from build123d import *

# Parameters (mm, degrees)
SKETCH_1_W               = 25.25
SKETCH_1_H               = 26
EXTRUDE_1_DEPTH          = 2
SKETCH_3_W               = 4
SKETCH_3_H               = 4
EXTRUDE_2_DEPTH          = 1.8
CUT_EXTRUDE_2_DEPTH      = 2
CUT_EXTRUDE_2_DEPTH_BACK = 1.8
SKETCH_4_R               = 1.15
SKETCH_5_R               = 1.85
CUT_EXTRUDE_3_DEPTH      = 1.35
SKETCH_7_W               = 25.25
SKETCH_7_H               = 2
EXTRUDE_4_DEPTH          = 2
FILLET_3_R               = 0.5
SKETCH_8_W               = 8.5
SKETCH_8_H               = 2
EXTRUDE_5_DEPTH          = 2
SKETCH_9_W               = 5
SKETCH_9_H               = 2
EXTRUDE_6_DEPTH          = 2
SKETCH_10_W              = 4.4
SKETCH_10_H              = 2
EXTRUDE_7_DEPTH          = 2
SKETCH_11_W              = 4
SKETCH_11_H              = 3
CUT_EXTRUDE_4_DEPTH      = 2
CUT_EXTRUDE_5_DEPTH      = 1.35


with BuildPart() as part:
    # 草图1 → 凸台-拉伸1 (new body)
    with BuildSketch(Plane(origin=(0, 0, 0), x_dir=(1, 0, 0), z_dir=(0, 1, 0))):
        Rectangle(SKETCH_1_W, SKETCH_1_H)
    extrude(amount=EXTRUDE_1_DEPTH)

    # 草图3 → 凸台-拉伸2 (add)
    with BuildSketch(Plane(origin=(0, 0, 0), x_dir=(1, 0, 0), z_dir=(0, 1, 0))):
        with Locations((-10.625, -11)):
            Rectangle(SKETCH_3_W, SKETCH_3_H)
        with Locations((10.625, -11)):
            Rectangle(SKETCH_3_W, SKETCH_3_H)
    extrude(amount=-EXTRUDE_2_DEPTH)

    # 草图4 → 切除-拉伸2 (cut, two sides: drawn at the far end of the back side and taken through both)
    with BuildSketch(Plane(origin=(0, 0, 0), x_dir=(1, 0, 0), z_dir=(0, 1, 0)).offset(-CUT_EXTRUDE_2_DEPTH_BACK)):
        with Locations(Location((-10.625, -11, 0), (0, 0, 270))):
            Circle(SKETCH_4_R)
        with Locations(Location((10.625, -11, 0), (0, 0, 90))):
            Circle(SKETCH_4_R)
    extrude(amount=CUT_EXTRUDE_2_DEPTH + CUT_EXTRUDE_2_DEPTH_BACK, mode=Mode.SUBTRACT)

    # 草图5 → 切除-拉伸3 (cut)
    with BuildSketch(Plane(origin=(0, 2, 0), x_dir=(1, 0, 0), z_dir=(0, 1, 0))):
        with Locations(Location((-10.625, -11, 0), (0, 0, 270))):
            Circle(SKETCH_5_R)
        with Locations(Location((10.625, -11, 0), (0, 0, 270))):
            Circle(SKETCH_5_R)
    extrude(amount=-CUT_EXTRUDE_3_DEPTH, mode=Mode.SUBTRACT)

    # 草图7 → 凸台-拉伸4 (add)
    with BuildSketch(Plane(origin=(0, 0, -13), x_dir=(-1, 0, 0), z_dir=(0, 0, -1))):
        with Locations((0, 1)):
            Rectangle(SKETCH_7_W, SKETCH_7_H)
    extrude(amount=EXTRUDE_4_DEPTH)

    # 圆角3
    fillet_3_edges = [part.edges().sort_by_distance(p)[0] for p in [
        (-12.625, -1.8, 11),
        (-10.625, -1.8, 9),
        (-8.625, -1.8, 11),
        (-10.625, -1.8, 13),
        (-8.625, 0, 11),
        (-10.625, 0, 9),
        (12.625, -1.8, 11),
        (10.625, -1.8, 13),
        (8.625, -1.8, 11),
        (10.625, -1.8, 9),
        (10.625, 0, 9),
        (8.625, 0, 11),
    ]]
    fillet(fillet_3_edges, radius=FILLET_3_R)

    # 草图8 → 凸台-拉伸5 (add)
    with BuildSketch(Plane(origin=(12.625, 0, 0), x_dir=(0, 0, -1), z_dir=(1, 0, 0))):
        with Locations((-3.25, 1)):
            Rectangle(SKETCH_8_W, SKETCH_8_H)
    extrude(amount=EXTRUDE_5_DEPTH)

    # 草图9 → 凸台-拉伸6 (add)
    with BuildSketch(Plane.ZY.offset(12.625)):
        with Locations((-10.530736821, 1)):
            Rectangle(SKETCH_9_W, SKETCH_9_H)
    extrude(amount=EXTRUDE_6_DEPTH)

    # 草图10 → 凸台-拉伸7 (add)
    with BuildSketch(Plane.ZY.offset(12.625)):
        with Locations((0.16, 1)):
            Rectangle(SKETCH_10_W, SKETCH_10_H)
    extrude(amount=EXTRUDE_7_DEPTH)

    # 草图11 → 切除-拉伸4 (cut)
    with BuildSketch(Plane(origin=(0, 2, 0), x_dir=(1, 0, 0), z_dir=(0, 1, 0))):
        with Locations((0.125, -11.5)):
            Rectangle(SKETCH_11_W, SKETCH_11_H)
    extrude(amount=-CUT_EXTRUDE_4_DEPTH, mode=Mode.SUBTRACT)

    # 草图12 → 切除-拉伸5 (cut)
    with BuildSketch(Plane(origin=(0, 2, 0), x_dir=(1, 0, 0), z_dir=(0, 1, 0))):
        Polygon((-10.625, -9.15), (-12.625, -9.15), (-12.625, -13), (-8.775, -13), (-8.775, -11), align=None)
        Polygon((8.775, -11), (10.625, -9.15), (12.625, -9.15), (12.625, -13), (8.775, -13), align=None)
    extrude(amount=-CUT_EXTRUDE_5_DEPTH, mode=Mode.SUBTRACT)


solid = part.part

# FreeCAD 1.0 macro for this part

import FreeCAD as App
import Part
import Sketcher
from FreeCAD import Vector


def edges_at(feature, points):
    """Names of the edges that pass closest to the given points."""
    edges = feature.Shape.Edges
    near = lambda p: min(range(len(edges)), key=lambda i: edges[i].distToShape(Part.Vertex(*p))[0])
    return sorted({f"Edge{near(p) + 1}" for p in points})


def add_polygon(sketch, points):
    """Adds a closed chain of lines whose ends are joined by coincident constraints."""
    first, n = sketch.GeometryCount, len(points)
    for a, b in zip(points, points[1:] + points[:1]):
        sketch.addGeometry(Part.LineSegment(App.Vector(*a, 0), App.Vector(*b, 0)), False)
    for i in range(n):
        sketch.addConstraint(Sketcher.Constraint("Coincident", first + i, 2, first + (i + 1) % n, 1))

doc = App.newDocument("Part")
params = doc.addObject("Spreadsheet::Sheet", "Params")
for row, (alias, value) in enumerate([
    ("sketch1_height", "26 mm"),
    ("sketch1_width", "25.25 mm"),
    ("pad1_length", "2 mm"),
    ("sketch2_width", "4 mm"),
    ("pad2_length", "1.8 mm"),
    ("sketch3_diameter", "2.3 mm"),
    ("sketch4_diameter", "3.7 mm"),
    ("pocket2_length", "1.35 mm"),
    ("sketch5_height", "2 mm"),
    ("sketch5_width", "25.25 mm"),
    ("pad3_length", "2 mm"),
    ("fillet_radius", "0.5 mm"),
    ("sketch6_width", "2 mm"),
    ("sketch6_height", "8.5 mm"),
    ("pad4_length", "2 mm"),
    ("sketch7_width", "2 mm"),
    ("sketch7_height", "5 mm"),
    ("pad5_length", "2 mm"),
    ("sketch8_width", "2 mm"),
    ("sketch8_height", "4.4 mm"),
    ("pad6_length", "2 mm"),
    ("sketch9_width", "4 mm"),
    ("sketch9_height", "3 mm"),
    ("pocket3_length", "2 mm"),
    ("sketch10_width", "2 mm"),
    ("sketch10_width2", "3.85 mm"),
    ("pocket4_length", "1.35 mm"),
], start=1):
    params.set(f"A{row}", alias)
    params.set(f"B{row}", "=" + value)
    params.setAlias(f"B{row}", alias)

body = doc.addObject("PartDesign::Body", "Body")

sketch1 = doc.addObject("Sketcher::SketchObject", "Sketch")
body.addObject(sketch1)
sketch1.AttachmentSupport = (doc.XZ_Plane, [""])
sketch1.MapMode = "FlatFace"
add_polygon(sketch1, [(-12.625, -13), (-12.625, 13), (12.625, 13), (12.625, -13)])
sketch1.addConstraint(Sketcher.Constraint("Vertical", 0))
sketch1.addConstraint(Sketcher.Constraint("Horizontal", 1))
sketch1.addConstraint(Sketcher.Constraint("Vertical", 2))
sketch1.addConstraint(Sketcher.Constraint("Horizontal", 3))
sketch1.addConstraint(Sketcher.Constraint("Symmetric", 0, 2, 2, 2, -1, 1))
sketch1.addConstraint(Sketcher.Constraint("DistanceY", 0, 1, 0, 2, 26.0))
sketch1.addConstraint(Sketcher.Constraint("DistanceX", 1, 1, 1, 2, 25.25))
sketch1.setExpression("Constraints[9]", "Params.sketch1_height")
sketch1.setExpression("Constraints[10]", "Params.sketch1_width")
pad1 = doc.addObject("PartDesign::Pad", "Pad")
body.addObject(pad1)
pad1.Profile = sketch1
pad1.setExpression("Length", "Params.pad1_length")
pad1.Reversed = True

sketch2 = doc.addObject("Sketcher::SketchObject", "Sketch001")
body.addObject(sketch2)
sketch2.AttachmentSupport = (doc.XZ_Plane, [""])
sketch2.MapMode = "FlatFace"
add_polygon(sketch2, [(-12.625, 9), (-12.625, 13), (-8.625, 13), (-8.625, 9)])
add_polygon(sketch2, [(8.625, 9), (8.625, 13), (12.625, 13), (12.625, 9)])
sketch2.addConstraint(Sketcher.Constraint("Vertical", 0))
sketch2.addConstraint(Sketcher.Constraint("Horizontal", 1))
sketch2.addConstraint(Sketcher.Constraint("Vertical", 2))
sketch2.addConstraint(Sketcher.Constraint("Horizontal", 3))
sketch2.addConstraint(Sketcher.Constraint("Vertical", 4))
sketch2.addConstraint(Sketcher.Constraint("Horizontal", 5))
sketch2.addConstraint(Sketcher.Constraint("Vertical", 6))
sketch2.addConstraint(Sketcher.Constraint("Horizontal", 7))
sketch2.addConstraint(Sketcher.Constraint("Symmetric", 1, 2, 4, 2, -2))
sketch2.addConstraint(Sketcher.Constraint("Symmetric", 3, 2, 6, 2, -2))
sketch2.addConstraint(Sketcher.Constraint("Equal", 7, 0))
sketch2.addConstraint(Sketcher.Constraint("DistanceX", 1, 1, 1, 2, 4.0))
sketch2.addConstraint(Sketcher.Constraint("DistanceY", -1, 1, 0, 2, 13.0))
sketch2.addConstraint(Sketcher.Constraint("DistanceX", 1, 2, 4, 2, 17.25))
sketch2.setExpression("Constraints[19]", "Params.sketch2_width")
pad2 = doc.addObject("PartDesign::Pad", "Pad001")
body.addObject(pad2)
pad2.Profile = sketch2
pad2.setExpression("Length", "Params.pad2_length")

sketch3 = doc.addObject("Sketcher::SketchObject", "Sketch002")
body.addObject(sketch3)
sketch3.AttachmentSupport = (doc.XZ_Plane, [""])
sketch3.MapMode = "FlatFace"
sketch3.addGeometry(Part.Circle(Vector(-10.625, 11, 0), Vector(0, 0, 1), 1.15), False)
sketch3.addGeometry(Part.Circle(Vector(10.625, 11, 0), Vector(0, 0, 1), 1.15), False)
sketch3.addConstraint(Sketcher.Constraint("Equal", 0, 1))
sketch3.addConstraint(Sketcher.Constraint("Symmetric", 0, 3, 1, 3, -2))
sketch3.addConstraint(Sketcher.Constraint("Diameter", 0, 2.3))
sketch3.addConstraint(Sketcher.Constraint("DistanceY", -1, 1, 0, 3, 11.0))
sketch3.addConstraint(Sketcher.Constraint("DistanceX", 0, 3, 1, 3, 21.25))
sketch3.setExpression("Constraints[2]", "Params.sketch3_diameter")
pocket1 = doc.addObject("PartDesign::Pocket", "Pocket")
body.addObject(pocket1)
pocket1.Profile = sketch3
pocket1.Type = "ThroughAll"
pocket1.Midplane = True

sketch4 = doc.addObject("Sketcher::SketchObject", "Sketch003")
body.addObject(sketch4)
sketch4.AttachmentSupport = (doc.XZ_Plane, [""])
sketch4.MapMode = "FlatFace"
sketch4.AttachmentOffset = App.Placement(Vector(0, 0, -2), App.Rotation())
sketch4.addGeometry(Part.Circle(Vector(-10.625, 11, 0), Vector(0, 0, 1), 1.85), False)
sketch4.addGeometry(Part.Circle(Vector(10.625, 11, 0), Vector(0, 0, 1), 1.85), False)
sketch4.addConstraint(Sketcher.Constraint("Equal", 0, 1))
sketch4.addConstraint(Sketcher.Constraint("Symmetric", 0, 3, 1, 3, -2))
sketch4.addConstraint(Sketcher.Constraint("Diameter", 0, 3.7))
sketch4.addConstraint(Sketcher.Constraint("DistanceY", -1, 1, 0, 3, 11.0))
sketch4.addConstraint(Sketcher.Constraint("DistanceX", 0, 3, 1, 3, 21.25))
sketch4.setExpression("Constraints[2]", "Params.sketch4_diameter")
pocket2 = doc.addObject("PartDesign::Pocket", "Pocket001")
body.addObject(pocket2)
pocket2.Profile = sketch4
pocket2.setExpression("Length", "Params.pocket2_length")
pocket2.Reversed = True

sketch5 = doc.addObject("Sketcher::SketchObject", "Sketch004")
body.addObject(sketch5)
sketch5.AttachmentSupport = (doc.XY_Plane, [""])
sketch5.MapMode = "FlatFace"
sketch5.AttachmentOffset = App.Placement(Vector(0, 0, -13), App.Rotation())
add_polygon(sketch5, [(12.625, 2), (12.625, 0), (-12.625, 0), (-12.625, 2)])
sketch5.addConstraint(Sketcher.Constraint("Vertical", 0))
sketch5.addConstraint(Sketcher.Constraint("Horizontal", 1))
sketch5.addConstraint(Sketcher.Constraint("Vertical", 2))
sketch5.addConstraint(Sketcher.Constraint("Horizontal", 3))
sketch5.addConstraint(Sketcher.Constraint("Symmetric", 0, 2, 1, 2, -1, 1))
sketch5.addConstraint(Sketcher.Constraint("DistanceY", 0, 2, 0, 1, 2.0))
sketch5.addConstraint(Sketcher.Constraint("DistanceX", 1, 2, 1, 1, 25.25))
sketch5.setExpression("Constraints[9]", "Params.sketch5_height")
sketch5.setExpression("Constraints[10]", "Params.sketch5_width")
pad3 = doc.addObject("PartDesign::Pad", "Pad002")
body.addObject(pad3)
pad3.Profile = sketch5
pad3.setExpression("Length", "Params.pad3_length")
pad3.Reversed = True
doc.recompute()

fillet = doc.addObject("PartDesign::Fillet", "Fillet")
body.addObject(fillet)
fillet.Base = (pad3, edges_at(pad3, [
    (-12.625, -1.8, 11),
    (-10.625, -1.8, 9),
    (-8.625, -1.8, 11),
    (-10.625, -1.8, 13),
    (-8.625, 0, 11),
    (-10.625, 0, 9),
    (12.625, -1.8, 11),
    (10.625, -1.8, 13),
    (8.625, -1.8, 11),
    (10.625, -1.8, 9),
    (10.625, 0, 9),
    (8.625, 0, 11),
]))
fillet.setExpression("Radius", "Params.fillet_radius")

sketch6 = doc.addObject("Sketcher::SketchObject", "Sketch005")
body.addObject(sketch6)
sketch6.AttachmentSupport = (doc.YZ_Plane, [""])
sketch6.MapMode = "FlatFace"
sketch6.AttachmentOffset = App.Placement(Vector(0, 0, 12.625), App.Rotation())
add_polygon(sketch6, [(2, 7.5), (0, 7.5), (0, -1), (2, -1)])
sketch6.addConstraint(Sketcher.Constraint("Horizontal", 0))
sketch6.addConstraint(Sketcher.Constraint("Vertical", 1))
sketch6.addConstraint(Sketcher.Constraint("Horizontal", 2))
sketch6.addConstraint(Sketcher.Constraint("Vertical", 3))
sketch6.addConstraint(Sketcher.Constraint("PointOnObject", 0, 2, -2))
sketch6.addConstraint(Sketcher.Constraint("DistanceX", 0, 2, 0, 1, 2.0))
sketch6.addConstraint(Sketcher.Constraint("DistanceY", 1, 2, 1, 1, 8.5))
sketch6.addConstraint(Sketcher.Constraint("DistanceY", 1, 2, -1, 1, 1.0))
sketch6.setExpression("Constraints[9]", "Params.sketch6_width")
sketch6.setExpression("Constraints[10]", "Params.sketch6_height")
pad4 = doc.addObject("PartDesign::Pad", "Pad003")
body.addObject(pad4)
pad4.Profile = sketch6
pad4.setExpression("Length", "Params.pad4_length")

sketch7 = doc.addObject("Sketcher::SketchObject", "Sketch006")
body.addObject(sketch7)
sketch7.AttachmentSupport = (doc.YZ_Plane, [""])
sketch7.MapMode = "FlatFace"
sketch7.AttachmentOffset = App.Placement(Vector(0, 0, -12.625), App.Rotation())
add_polygon(sketch7, [(2, -13.030737), (0, -13.030737), (0, -8.030737), (2, -8.030737)])
sketch7.addConstraint(Sketcher.Constraint("Horizontal", 0))
sketch7.addConstraint(Sketcher.Constraint("Vertical", 1))
sketch7.addConstraint(Sketcher.Constraint("Horizontal", 2))
sketch7.addConstraint(Sketcher.Constraint("Vertical", 3))
sketch7.addConstraint(Sketcher.Constraint("PointOnObject", 0, 2, -2))
sketch7.addConstraint(Sketcher.Constraint("DistanceX", 0, 2, 0, 1, 2.0))
sketch7.addConstraint(Sketcher.Constraint("DistanceY", 1, 1, 1, 2, 5.0))
sketch7.addConstraint(Sketcher.Constraint("DistanceY", 0, 2, -1, 1, 13.030737))
sketch7.setExpression("Constraints[9]", "Params.sketch7_width")
sketch7.setExpression("Constraints[10]", "Params.sketch7_height")
pad5 = doc.addObject("PartDesign::Pad", "Pad004")
body.addObject(pad5)
pad5.Profile = sketch7
pad5.setExpression("Length", "Params.pad5_length")
pad5.Reversed = True

sketch8 = doc.addObject("Sketcher::SketchObject", "Sketch007")
body.addObject(sketch8)
sketch8.AttachmentSupport = (doc.YZ_Plane, [""])
sketch8.MapMode = "FlatFace"
sketch8.AttachmentOffset = App.Placement(Vector(0, 0, -12.625), App.Rotation())
add_polygon(sketch8, [(2, -2.04), (0, -2.04), (0, 2.36), (2, 2.36)])
sketch8.addConstraint(Sketcher.Constraint("Horizontal", 0))
sketch8.addConstraint(Sketcher.Constraint("Vertical", 1))
sketch8.addConstraint(Sketcher.Constraint("Horizontal", 2))
sketch8.addConstraint(Sketcher.Constraint("Vertical", 3))
sketch8.addConstraint(Sketcher.Constraint("PointOnObject", 0, 2, -2))
sketch8.addConstraint(Sketcher.Constraint("DistanceX", 0, 2, 0, 1, 2.0))
sketch8.addConstraint(Sketcher.Constraint("DistanceY", 1, 1, 1, 2, 4.4))
sketch8.addConstraint(Sketcher.Constraint("DistanceY", 0, 2, -1, 1, 2.04))
sketch8.setExpression("Constraints[9]", "Params.sketch8_width")
sketch8.setExpression("Constraints[10]", "Params.sketch8_height")
pad6 = doc.addObject("PartDesign::Pad", "Pad005")
body.addObject(pad6)
pad6.Profile = sketch8
pad6.setExpression("Length", "Params.pad6_length")
pad6.Reversed = True

sketch9 = doc.addObject("Sketcher::SketchObject", "Sketch008")
body.addObject(sketch9)
sketch9.AttachmentSupport = (doc.XZ_Plane, [""])
sketch9.MapMode = "FlatFace"
sketch9.AttachmentOffset = App.Placement(Vector(0, 0, -2), App.Rotation())
add_polygon(sketch9, [(-1.875, 10), (-1.875, 13), (2.125, 13), (2.125, 10)])
sketch9.addConstraint(Sketcher.Constraint("Vertical", 0))
sketch9.addConstraint(Sketcher.Constraint("Horizontal", 1))
sketch9.addConstraint(Sketcher.Constraint("Vertical", 2))
sketch9.addConstraint(Sketcher.Constraint("Horizontal", 3))
sketch9.addConstraint(Sketcher.Constraint("DistanceX", 1, 1, 1, 2, 4.0))
sketch9.addConstraint(Sketcher.Constraint("DistanceY", 0, 1, 0, 2, 3.0))
sketch9.addConstraint(Sketcher.Constraint("DistanceY", -1, 1, 0, 2, 13.0))
sketch9.addConstraint(Sketcher.Constraint("DistanceX", 0, 2, -1, 1, 1.875))
sketch9.setExpression("Constraints[8]", "Params.sketch9_width")
sketch9.setExpression("Constraints[9]", "Params.sketch9_height")
pocket3 = doc.addObject("PartDesign::Pocket", "Pocket002")
body.addObject(pocket3)
pocket3.Profile = sketch9
pocket3.setExpression("Length", "Params.pocket3_length")
pocket3.Reversed = True

sketch10 = doc.addObject("Sketcher::SketchObject", "Sketch009")
body.addObject(sketch10)
sketch10.AttachmentSupport = (doc.XZ_Plane, [""])
sketch10.MapMode = "FlatFace"
sketch10.AttachmentOffset = App.Placement(Vector(0, 0, -2), App.Rotation())
add_polygon(sketch10, [(-10.625, 9.15), (-12.625, 9.15), (-12.625, 13), (-8.775, 13), (-8.775, 11)])
add_polygon(sketch10, [(10.625, 9.15), (8.775, 11), (8.775, 13), (12.625, 13), (12.625, 9.15)])
sketch10.addConstraint(Sketcher.Constraint("Horizontal", 0))
sketch10.addConstraint(Sketcher.Constraint("Vertical", 1))
sketch10.addConstraint(Sketcher.Constraint("Horizontal", 2))
sketch10.addConstraint(Sketcher.Constraint("Vertical", 3))
sketch10.addConstraint(Sketcher.Constraint("Vertical", 6))
sketch10.addConstraint(Sketcher.Constraint("Horizontal", 7))
sketch10.addConstraint(Sketcher.Constraint("Vertical", 8))
sketch10.addConstraint(Sketcher.Constraint("Horizontal", 9))
sketch10.addConstraint(Sketcher.Constraint("Symmetric", 3, 2, 5, 2, -2))
sketch10.addConstraint(Sketcher.Constraint("Symmetric", 1, 2, 7, 2, -2))
sketch10.addConstraint(Sketcher.Constraint("Symmetric", 4, 2, 9, 2, -2))
sketch10.addConstraint(Sketcher.Constraint("Perpendicular", 4, 5))
sketch10.addConstraint(Sketcher.Constraint("Equal", 7, 1))
sketch10.addConstraint(Sketcher.Constraint("DistanceX", 0, 2, 0, 1, 2.0))
sketch10.addConstraint(Sketcher.Constraint("DistanceY", -1, 1, 1, 2, 13.0))
sketch10.addConstraint(Sketcher.Constraint("DistanceX", 2, 1, 2, 2, 3.85))
sketch10.addConstraint(Sketcher.Constraint("DistanceX", 4, 2, 5, 2, 19.4))
sketch10.setExpression("Constraints[23]", "Params.sketch10_width")
sketch10.setExpression("Constraints[25]", "Params.sketch10_width2")
pocket4 = doc.addObject("PartDesign::Pocket", "Pocket003")
body.addObject(pocket4)
pocket4.Profile = sketch10
pocket4.setExpression("Length", "Params.pocket4_length")
pocket4.Reversed = True

doc.recompute()
